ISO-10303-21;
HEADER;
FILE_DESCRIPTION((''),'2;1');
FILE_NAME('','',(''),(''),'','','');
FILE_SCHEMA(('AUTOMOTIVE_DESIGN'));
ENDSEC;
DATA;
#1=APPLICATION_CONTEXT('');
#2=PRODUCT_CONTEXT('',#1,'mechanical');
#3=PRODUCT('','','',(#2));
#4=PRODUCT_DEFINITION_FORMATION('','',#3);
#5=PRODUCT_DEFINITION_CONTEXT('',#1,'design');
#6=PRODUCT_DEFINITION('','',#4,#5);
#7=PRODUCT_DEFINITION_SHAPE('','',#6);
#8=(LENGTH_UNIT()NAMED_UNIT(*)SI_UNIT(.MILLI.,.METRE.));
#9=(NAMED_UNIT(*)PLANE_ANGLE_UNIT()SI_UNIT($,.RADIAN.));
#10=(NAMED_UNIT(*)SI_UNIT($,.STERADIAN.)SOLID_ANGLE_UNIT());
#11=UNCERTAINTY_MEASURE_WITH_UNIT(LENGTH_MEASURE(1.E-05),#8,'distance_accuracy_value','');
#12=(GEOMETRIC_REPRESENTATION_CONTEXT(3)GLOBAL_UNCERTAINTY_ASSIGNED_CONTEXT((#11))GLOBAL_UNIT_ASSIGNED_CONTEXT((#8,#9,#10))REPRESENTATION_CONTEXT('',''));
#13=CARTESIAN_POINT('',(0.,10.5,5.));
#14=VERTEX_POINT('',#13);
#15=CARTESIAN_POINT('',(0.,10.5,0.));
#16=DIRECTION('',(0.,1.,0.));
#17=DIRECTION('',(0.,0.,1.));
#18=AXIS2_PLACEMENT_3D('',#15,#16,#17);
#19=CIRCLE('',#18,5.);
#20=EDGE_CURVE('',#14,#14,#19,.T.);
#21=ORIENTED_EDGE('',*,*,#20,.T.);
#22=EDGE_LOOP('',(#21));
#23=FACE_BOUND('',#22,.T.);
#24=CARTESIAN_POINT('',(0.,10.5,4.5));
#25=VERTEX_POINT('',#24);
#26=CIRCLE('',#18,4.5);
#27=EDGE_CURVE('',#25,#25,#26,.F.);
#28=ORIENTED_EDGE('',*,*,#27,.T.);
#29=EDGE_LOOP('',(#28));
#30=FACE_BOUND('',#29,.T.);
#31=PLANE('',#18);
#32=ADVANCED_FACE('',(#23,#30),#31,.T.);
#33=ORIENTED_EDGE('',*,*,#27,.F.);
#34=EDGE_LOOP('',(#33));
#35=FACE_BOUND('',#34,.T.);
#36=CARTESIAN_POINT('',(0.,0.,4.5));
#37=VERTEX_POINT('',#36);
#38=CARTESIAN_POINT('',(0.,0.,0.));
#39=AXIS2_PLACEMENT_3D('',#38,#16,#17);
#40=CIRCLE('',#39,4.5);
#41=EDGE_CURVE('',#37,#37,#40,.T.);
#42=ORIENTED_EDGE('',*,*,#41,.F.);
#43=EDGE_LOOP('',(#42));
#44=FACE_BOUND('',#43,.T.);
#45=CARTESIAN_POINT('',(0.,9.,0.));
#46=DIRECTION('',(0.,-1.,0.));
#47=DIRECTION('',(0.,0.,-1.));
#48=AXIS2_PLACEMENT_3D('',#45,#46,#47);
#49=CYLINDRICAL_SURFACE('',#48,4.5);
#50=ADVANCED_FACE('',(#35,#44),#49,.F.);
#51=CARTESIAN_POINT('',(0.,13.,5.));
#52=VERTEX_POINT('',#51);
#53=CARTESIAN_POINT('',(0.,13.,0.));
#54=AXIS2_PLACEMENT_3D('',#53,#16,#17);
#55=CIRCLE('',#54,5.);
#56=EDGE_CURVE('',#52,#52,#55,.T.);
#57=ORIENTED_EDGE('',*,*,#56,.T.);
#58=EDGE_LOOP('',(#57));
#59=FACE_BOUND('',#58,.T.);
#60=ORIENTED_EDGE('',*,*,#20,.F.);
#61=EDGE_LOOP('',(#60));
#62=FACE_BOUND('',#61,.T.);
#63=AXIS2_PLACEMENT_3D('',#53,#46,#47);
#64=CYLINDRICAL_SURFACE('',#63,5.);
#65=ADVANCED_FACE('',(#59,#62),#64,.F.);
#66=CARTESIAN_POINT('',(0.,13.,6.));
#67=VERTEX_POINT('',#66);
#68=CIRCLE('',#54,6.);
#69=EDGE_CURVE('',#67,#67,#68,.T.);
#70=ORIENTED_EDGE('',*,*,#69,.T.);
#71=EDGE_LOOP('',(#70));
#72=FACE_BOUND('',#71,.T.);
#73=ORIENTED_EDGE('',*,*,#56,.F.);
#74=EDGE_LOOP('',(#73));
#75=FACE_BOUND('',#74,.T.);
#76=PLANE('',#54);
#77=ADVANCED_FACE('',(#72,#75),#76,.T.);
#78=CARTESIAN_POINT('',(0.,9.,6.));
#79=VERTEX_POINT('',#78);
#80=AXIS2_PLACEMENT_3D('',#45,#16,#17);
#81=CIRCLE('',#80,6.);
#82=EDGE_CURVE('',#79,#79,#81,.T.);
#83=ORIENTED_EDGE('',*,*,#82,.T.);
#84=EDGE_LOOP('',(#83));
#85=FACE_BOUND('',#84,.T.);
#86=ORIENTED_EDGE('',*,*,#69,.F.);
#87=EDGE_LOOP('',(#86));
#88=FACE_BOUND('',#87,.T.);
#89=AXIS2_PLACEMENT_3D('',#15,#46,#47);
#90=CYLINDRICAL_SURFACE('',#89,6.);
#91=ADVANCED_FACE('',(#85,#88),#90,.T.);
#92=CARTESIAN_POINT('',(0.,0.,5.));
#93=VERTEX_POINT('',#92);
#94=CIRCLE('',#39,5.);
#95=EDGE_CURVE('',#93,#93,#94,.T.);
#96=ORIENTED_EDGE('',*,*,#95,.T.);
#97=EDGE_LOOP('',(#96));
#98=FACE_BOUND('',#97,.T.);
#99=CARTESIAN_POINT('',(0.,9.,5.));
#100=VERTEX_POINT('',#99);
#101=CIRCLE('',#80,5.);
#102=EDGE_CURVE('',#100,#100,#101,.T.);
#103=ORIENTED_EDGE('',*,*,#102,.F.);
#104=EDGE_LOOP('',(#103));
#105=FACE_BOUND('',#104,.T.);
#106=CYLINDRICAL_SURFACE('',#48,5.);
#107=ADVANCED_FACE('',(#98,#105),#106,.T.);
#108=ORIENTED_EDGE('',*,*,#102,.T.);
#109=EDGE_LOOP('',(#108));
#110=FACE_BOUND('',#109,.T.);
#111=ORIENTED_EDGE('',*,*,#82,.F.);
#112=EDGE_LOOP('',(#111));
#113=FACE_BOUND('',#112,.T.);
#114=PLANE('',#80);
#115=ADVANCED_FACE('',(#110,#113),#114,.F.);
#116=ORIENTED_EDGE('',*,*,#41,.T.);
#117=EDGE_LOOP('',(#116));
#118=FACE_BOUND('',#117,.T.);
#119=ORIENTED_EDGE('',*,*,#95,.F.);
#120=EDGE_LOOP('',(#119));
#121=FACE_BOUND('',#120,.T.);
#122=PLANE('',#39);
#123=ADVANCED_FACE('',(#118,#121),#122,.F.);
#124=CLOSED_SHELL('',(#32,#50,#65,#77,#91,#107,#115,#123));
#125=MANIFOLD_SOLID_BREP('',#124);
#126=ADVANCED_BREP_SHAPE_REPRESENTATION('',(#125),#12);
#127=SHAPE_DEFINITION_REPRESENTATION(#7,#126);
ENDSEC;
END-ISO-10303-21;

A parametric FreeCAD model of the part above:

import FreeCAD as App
import Part
import Sketcher
from FreeCAD import Vector
Q = App.Units.Quantity

doc = App.newDocument("Part")
body = doc.addObject("PartDesign::Body", "Body")

# Sketch on XZ plane
sketch1 = doc.addObject("Sketcher::SketchObject", "Sketch")
body.addObject(sketch1)
sketch1.AttachmentSupport = (doc.XZ_Plane, [""])
sketch1.MapMode = "FlatFace"
sketch1.addGeometry(Part.Circle(Vector(0, 0, 0), Vector(0, 0, 1), 5), False)
sketch1.addGeometry(Part.Circle(Vector(0, 0, 0), Vector(0, 0, 1), 4.5), False)
sketch1.addConstraint(Sketcher.Constraint("Coincident", 0, 3, -1, 1))
sketch1.addConstraint(Sketcher.Constraint("Coincident", 1, 3, -1, 1))
sketch1.addConstraint(Sketcher.Constraint("Diameter", 0, Q("10 mm")))
sketch1.addConstraint(Sketcher.Constraint("Diameter", 1, Q("9 mm")))
pad1 = doc.addObject("PartDesign::Pad", "Pad")
body.addObject(pad1)
pad1.Profile = sketch1
pad1.Length = 9
pad1.Reversed = True

# Sketch on XZ plane
sketch2 = doc.addObject("Sketcher::SketchObject", "Sketch001")
body.addObject(sketch2)
sketch2.AttachmentSupport = (doc.XZ_Plane, [""])
sketch2.MapMode = "FlatFace"
sketch2.AttachmentOffset = App.Placement(Vector(0, 0, -9), App.Rotation())
sketch2.addGeometry(Part.Circle(Vector(0, 0, 0), Vector(0, 0, 1), 6), False)
sketch2.addGeometry(Part.Circle(Vector(0, 0, 0), Vector(0, 0, 1), 4.5), False)
sketch2.addConstraint(Sketcher.Constraint("Coincident", 0, 3, -1, 1))
sketch2.addConstraint(Sketcher.Constraint("Coincident", 1, 3, -1, 1))
sketch2.addConstraint(Sketcher.Constraint("Diameter", 0, Q("12 mm")))
sketch2.addConstraint(Sketcher.Constraint("Diameter", 1, Q("9 mm")))
pad2 = doc.addObject("PartDesign::Pad", "Pad001")
body.addObject(pad2)
pad2.Profile = sketch2
pad2.Length = 1.5
pad2.Reversed = True

# Sketch on XZ plane
sketch3 = doc.addObject("Sketcher::SketchObject", "Sketch002")
body.addObject(sketch3)
sketch3.AttachmentSupport = (doc.XZ_Plane, [""])
sketch3.MapMode = "FlatFace"
sketch3.AttachmentOffset = App.Placement(Vector(0, 0, -10.5), App.Rotation())
sketch3.addGeometry(Part.Circle(Vector(0, 0, 0), Vector(0, 0, 1), 6), False)
sketch3.addGeometry(Part.Circle(Vector(0, 0, 0), Vector(0, 0, 1), 5), False)
sketch3.addConstraint(Sketcher.Constraint("Coincident", 0, 3, -1, 1))
sketch3.addConstraint(Sketcher.Constraint("Coincident", 1, 3, -1, 1))
sketch3.addConstraint(Sketcher.Constraint("Diameter", 0, Q("12 mm")))
sketch3.addConstraint(Sketcher.Constraint("Diameter", 1, Q("10 mm")))
pad3 = doc.addObject("PartDesign::Pad", "Pad002")
body.addObject(pad3)
pad3.Profile = sketch3
pad3.Length = 2.5
pad3.Reversed = True

doc.recompute()
